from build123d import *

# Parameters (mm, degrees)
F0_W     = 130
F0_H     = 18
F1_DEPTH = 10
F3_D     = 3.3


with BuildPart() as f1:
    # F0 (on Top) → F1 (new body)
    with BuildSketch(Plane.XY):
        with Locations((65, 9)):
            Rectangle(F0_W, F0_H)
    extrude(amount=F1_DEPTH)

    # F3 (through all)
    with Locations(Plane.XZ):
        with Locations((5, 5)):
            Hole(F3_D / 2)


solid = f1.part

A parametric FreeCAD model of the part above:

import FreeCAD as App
import Part
import Sketcher
from FreeCAD import Vector


def add_polygon(sketch, points):
    """Adds a closed chain of lines whose ends are joined by coincident constraints."""
    first, n = sketch.GeometryCount, len(points)
    for a, b in zip(points, points[1:] + points[:1]):
        sketch.addGeometry(Part.LineSegment(App.Vector(*a, 0), App.Vector(*b, 0)), False)
    for i in range(n):
        sketch.addConstraint(Sketcher.Constraint("Coincident", first + i, 2, first + (i + 1) % n, 1))

doc = App.newDocument("Part")
body = doc.addObject("PartDesign::Body", "Body")

# Sketch on XY plane
sketch1 = doc.addObject("Sketcher::SketchObject", "Sketch")
body.addObject(sketch1)
sketch1.AttachmentSupport = (doc.XY_Plane, [""])
sketch1.MapMode = "FlatFace"
add_polygon(sketch1, [(0, 18), (0, 0), (130, 0), (130, 18)])  # lines 0-3
sketch1.addConstraint([
    Sketcher.Constraint("Vertical", 0),
    Sketcher.Constraint("Horizontal", 1),
    Sketcher.Constraint("Vertical", 2),
    Sketcher.Constraint("Horizontal", 3),
    Sketcher.Constraint("Coincident", 0, 2, -1, 1),
    Sketcher.Constraint("DistanceX", 1, 1, 1, 2, 130.0),
    Sketcher.Constraint("DistanceY", 0, 2, 0, 1, 18.0),
])
pad1 = doc.addObject("PartDesign::Pad", "Pad")
body.addObject(pad1)
pad1.Profile = sketch1
pad1.Length = 10

# Sketch on XZ plane
sketch2 = doc.addObject("Sketcher::SketchObject", "Sketch001")
body.addObject(sketch2)
sketch2.AttachmentSupport = (doc.XZ_Plane, [""])
sketch2.MapMode = "FlatFace"
sketch2.addGeometry(Part.Circle(Vector(5, 5, 0), Vector(0, 0, 1), 1.6), False)
sketch2.addConstraint([
    Sketcher.Constraint("Diameter", 0, 3.3),
    Sketcher.Constraint("DistanceX", -1, 1, 0, 3, 5.0),
    Sketcher.Constraint("DistanceY", -1, 1, 0, 3, 5.0),
])
doc.recompute()
hole = doc.addObject("PartDesign::Hole", "Hole")
body.addObject(hole)
hole.Profile = sketch2
hole.ThreadType = "None"
hole.Diameter = 3.3
hole.DepthType = "ThroughAll"

doc.recompute()
